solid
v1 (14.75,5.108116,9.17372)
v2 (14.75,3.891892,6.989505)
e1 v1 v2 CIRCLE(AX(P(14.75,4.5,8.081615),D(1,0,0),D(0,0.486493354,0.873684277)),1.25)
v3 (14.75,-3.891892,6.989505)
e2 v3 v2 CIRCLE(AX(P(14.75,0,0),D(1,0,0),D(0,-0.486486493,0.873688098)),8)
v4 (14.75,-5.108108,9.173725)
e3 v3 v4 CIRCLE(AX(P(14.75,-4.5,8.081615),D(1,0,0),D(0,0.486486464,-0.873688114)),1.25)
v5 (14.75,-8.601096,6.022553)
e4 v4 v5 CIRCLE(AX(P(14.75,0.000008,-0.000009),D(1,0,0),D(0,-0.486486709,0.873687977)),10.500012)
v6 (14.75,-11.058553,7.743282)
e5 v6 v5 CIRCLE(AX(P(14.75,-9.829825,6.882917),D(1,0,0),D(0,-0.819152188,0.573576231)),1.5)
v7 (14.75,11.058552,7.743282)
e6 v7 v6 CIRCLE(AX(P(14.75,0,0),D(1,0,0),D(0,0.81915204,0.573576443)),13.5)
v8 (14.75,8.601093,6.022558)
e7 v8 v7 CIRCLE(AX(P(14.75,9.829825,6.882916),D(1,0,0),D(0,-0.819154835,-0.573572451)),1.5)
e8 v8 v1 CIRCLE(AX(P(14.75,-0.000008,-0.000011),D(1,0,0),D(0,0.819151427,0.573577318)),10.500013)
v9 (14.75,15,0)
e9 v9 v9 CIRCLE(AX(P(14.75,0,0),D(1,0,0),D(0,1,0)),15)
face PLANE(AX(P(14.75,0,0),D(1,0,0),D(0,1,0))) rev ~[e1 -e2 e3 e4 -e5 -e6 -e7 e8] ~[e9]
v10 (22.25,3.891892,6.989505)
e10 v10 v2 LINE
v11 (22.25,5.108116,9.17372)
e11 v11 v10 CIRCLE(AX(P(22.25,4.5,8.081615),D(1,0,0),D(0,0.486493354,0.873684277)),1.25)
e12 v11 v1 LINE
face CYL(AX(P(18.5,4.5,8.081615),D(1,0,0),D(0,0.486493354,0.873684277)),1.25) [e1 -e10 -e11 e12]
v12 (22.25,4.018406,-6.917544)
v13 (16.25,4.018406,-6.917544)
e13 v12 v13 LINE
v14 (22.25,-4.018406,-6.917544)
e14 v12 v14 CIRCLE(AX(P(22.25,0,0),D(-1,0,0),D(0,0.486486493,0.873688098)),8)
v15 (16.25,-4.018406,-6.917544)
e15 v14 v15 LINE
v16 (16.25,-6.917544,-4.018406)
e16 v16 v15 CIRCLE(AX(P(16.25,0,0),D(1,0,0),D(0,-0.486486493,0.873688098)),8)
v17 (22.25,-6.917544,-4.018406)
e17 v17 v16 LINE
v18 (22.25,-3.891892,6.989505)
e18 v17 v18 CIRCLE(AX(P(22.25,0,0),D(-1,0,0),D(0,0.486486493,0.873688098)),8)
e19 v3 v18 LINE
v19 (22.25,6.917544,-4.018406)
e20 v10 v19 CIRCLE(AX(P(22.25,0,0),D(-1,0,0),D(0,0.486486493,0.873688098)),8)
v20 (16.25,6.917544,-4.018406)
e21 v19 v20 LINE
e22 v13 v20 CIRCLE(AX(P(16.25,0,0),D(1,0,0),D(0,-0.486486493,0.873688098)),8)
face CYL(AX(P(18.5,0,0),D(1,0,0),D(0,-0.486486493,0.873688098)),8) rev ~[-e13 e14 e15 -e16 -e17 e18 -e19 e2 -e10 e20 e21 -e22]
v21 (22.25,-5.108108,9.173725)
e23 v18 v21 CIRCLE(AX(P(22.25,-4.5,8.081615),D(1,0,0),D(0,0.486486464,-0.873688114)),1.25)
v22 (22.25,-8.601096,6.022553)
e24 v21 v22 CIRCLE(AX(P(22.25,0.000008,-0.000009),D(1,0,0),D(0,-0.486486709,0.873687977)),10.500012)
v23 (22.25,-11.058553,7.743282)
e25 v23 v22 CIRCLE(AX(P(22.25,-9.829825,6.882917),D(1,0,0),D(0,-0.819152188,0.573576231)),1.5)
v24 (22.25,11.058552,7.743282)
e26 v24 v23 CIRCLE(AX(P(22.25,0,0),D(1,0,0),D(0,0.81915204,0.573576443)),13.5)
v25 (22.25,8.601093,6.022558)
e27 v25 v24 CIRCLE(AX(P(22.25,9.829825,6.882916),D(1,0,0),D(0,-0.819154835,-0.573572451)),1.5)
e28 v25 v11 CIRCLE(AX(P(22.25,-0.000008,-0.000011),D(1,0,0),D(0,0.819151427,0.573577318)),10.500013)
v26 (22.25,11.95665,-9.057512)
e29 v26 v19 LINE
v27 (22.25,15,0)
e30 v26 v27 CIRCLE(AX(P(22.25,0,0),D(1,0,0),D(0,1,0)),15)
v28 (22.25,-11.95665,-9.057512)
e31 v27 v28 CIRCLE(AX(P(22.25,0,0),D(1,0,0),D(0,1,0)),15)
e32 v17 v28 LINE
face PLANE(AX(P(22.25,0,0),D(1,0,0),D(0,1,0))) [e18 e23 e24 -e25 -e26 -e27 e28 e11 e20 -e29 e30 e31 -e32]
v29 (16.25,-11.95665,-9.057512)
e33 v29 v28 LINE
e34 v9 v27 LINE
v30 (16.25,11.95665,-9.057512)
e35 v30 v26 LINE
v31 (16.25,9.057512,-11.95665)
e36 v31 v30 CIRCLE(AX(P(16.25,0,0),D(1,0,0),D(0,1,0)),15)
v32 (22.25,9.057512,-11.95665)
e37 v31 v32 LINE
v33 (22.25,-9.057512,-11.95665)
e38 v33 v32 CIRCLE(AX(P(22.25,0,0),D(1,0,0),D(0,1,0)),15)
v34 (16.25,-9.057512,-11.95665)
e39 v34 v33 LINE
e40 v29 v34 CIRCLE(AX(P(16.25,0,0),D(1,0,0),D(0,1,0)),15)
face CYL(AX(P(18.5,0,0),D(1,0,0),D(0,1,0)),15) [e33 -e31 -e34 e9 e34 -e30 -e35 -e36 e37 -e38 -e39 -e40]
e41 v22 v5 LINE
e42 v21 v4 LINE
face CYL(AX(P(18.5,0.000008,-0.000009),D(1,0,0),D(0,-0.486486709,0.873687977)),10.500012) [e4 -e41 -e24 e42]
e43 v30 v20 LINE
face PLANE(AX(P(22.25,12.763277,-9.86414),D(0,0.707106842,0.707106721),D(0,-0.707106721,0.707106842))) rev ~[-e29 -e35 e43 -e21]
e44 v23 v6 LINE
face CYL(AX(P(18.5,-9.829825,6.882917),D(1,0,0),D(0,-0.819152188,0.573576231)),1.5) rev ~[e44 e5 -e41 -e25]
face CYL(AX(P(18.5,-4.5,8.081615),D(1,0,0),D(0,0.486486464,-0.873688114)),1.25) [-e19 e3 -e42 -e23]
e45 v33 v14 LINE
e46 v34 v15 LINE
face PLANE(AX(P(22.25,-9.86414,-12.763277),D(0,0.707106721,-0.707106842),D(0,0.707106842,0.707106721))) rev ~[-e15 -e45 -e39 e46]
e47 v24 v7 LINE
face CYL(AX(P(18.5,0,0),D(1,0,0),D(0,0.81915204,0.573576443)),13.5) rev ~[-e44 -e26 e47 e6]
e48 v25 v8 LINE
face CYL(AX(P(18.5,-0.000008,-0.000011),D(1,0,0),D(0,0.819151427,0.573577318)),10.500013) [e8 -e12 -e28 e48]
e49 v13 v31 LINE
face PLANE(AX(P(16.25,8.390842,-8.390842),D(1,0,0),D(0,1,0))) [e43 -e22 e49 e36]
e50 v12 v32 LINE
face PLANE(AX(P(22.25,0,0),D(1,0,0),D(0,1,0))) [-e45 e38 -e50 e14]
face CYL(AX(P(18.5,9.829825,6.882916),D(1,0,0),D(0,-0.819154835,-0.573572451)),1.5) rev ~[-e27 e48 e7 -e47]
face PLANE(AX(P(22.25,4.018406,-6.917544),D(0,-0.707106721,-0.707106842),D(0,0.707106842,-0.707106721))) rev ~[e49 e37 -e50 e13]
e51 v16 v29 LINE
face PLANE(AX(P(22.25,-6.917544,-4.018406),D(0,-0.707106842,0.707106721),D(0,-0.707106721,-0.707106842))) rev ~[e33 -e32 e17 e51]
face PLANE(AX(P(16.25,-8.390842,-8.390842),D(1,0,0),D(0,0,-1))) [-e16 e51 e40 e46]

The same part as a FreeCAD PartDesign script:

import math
import FreeCAD as App
import Part
import Sketcher

V = App.Vector
Q = App.Units.Quantity

doc = App.newDocument("Part")
body = doc.addObject("PartDesign::Body", "Body")

sketch1 = body.newObject("Sketcher::SketchObject", "Sketch")
sketch1.AttachmentSupport = (doc.getObject("YZ_Plane"), [""])
sketch1.MapMode = "FlatFace"
sketch1.addGeometry([
    Part.Circle(V(0, 0, 0), V(0, 0, 1), 8),
    Part.Circle(V(0, 0, 0), V(0, 0, 1), 4),
], False)
sketch1.addConstraint([
    Sketcher.Constraint("Coincident", 0, 3, -1, 1),
    Sketcher.Constraint("Coincident", 1, 3, -1, 1),
    Sketcher.Constraint("Diameter", 0, Q("16 mm")),
    Sketcher.Constraint("Diameter", 1, Q("8 mm")),
])
pad1 = body.newObject("PartDesign::Pad", "Pad")
pad1.Profile = sketch1
pad1.Length = 7.5

sketch2 = body.newObject("Sketcher::SketchObject", "Sketch001")
sketch2.AttachmentSupport = (doc.getObject("YZ_Plane"), [""])
sketch2.MapMode = "FlatFace"
sketch2.addGeometry([
    Part.Circle(V(0, 0, 0), V(0, 0, 1), 6),
    Part.Circle(V(0, 0, 0), V(0, 0, 1), 4),
], False)
sketch2.addConstraint([
    Sketcher.Constraint("Coincident", 0, 3, -1, 1),
    Sketcher.Constraint("Coincident", 1, 3, -1, 1),
    Sketcher.Constraint("Diameter", 0, Q("12 mm")),
    Sketcher.Constraint("Diameter", 1, Q("8 mm")),
])
pad2 = body.newObject("PartDesign::Pad", "Pad001")
pad2.Profile = sketch2
pad2.Length = 7
pad2.Reversed = True

sketch3 = body.newObject("Sketcher::SketchObject", "Sketch002")
sketch3.AttachmentSupport = (doc.getObject("YZ_Plane"), [""])
sketch3.MapMode = "FlatFace"
sketch3.AttachmentOffset = App.Placement(V(0, 0, -7), App.Rotation())
sketch3.addGeometry([
    Part.Circle(V(0, 0, 0), V(0, 0, 1), 8),
    Part.Circle(V(0, 0, 0), V(0, 0, 1), 4),
], False)
sketch3.addConstraint([
    Sketcher.Constraint("Coincident", 0, 3, -1, 1),
    Sketcher.Constraint("Coincident", 1, 3, -1, 1),
    Sketcher.Constraint("Diameter", 0, Q("16 mm")),
    Sketcher.Constraint("Diameter", 1, Q("8 mm")),
])
pad3 = body.newObject("PartDesign::Pad", "Pad002")
pad3.Profile = sketch3
pad3.Length = 1.5
pad3.Reversed = True

sketch4 = body.newObject("Sketcher::SketchObject", "Sketch003")
sketch4.AttachmentSupport = (doc.getObject("XZ_Plane"), [""])
sketch4.MapMode = "FlatFace"
sketch4.addGeometry(Part.Circle(V(4, 0, 0), V(0, 0, 1), 2), False)
sketch4.addConstraint([
    Sketcher.Constraint("PointOnObject", 0, 3, -1),
    Sketcher.Constraint("Diameter", 0, Q("4 mm")),
    Sketcher.Constraint("DistanceX", -1, 1, 0, 3, Q("4 mm")),
])
pad4 = body.newObject("PartDesign::Pad", "Pad003")
pad4.Profile = sketch4
pad4.Length = 9
body2 = doc.addObject("PartDesign::Body", "Body001")
doc.recompute()

body.Placement = App.Placement(V(0, 0, 0), App.Rotation(V(1, 0, 0), 45))
boolean = body2.newObject("PartDesign::Boolean", "Boolean")
boolean.Type = "Fuse"
boolean.addObjects([body])
body3 = doc.addObject("PartDesign::Body", "Body002")
doc.recompute()

body2.Placement = App.Placement(V(22.5, 0, 0), App.Rotation(V(0, 0, 1), 180))
boolean2 = body3.newObject("PartDesign::Boolean", "Boolean001")
boolean2.Type = "Fuse"
boolean2.addObjects([body2])
body4 = doc.addObject("PartDesign::Body", "Body003")

sketch5 = body4.newObject("Sketcher::SketchObject", "Sketch004")
sketch5.AttachmentSupport = (doc.getObject("YZ_Plane003"), [""])
sketch5.MapMode = "FlatFace"
sketch5.addGeometry([
    Part.Circle(V(0, 0, 0), V(0, 0, 1), 15),
    Part.ArcOfCircle(Part.Circle(V(0, 0, 0), V(0, 0, 1), 8), math.radians(119.109909), math.radians(420.890091)),
    Part.ArcOfCircle(Part.Circle(V(-4.5, 8.081615, 0), V(0, 0, 1), 1.25), math.radians(-60.890093), math.radians(119.109907)),
    Part.ArcOfCircle(Part.Circle(V(0.000008, -0.000009, 0), V(0, 0, 1), 10.500012), math.radians(119.109924), math.radians(144.999982)),
    Part.ArcOfCircle(Part.Circle(V(-9.829825, 6.882917, 0), V(0, 0, 1), 1.5), math.radians(145.000014), math.radians(325.000014)),
    Part.ArcOfCircle(Part.Circle(V(0, 0, 0), V(0, 0, 1), 13.5), math.radians(35), math.radians(145)),
    Part.ArcOfCircle(Part.Circle(V(9.829825, 6.882916, 0), V(0, 0, 1), 1.5), math.radians(-145.000279), math.radians(35.00005)),
    Part.ArcOfCircle(Part.Circle(V(-0.000008, -0.000011, 0), V(0, 0, 1), 10.500013), math.radians(35.000062), math.radians(60.890034)),
    Part.ArcOfCircle(Part.Circle(V(4.5, 8.081615, 0), V(0, 0, 1), 1.25), math.radians(60.889641), math.radians(240.890113)),
], False)
sketch5.addConstraint([
    Sketcher.Constraint("Tangent", 1, 1, 2, 1),
    Sketcher.Constraint("Tangent", 2, 2, 3, 1),
    Sketcher.Constraint("Tangent", 3, 2, 4, 2),
    Sketcher.Constraint("Tangent", 4, 1, 5, 2),
    Sketcher.Constraint("Tangent", 5, 1, 6, 2),
    Sketcher.Constraint("Coincident", 6, 1, 7, 1),
    Sketcher.Constraint("Coincident", 7, 2, 8, 1),
    Sketcher.Constraint("Tangent", 8, 2, 1, 2),
    Sketcher.Constraint("Coincident", 0, 3, -1, 1),
    Sketcher.Constraint("Coincident", 1, 3, -1, 1),
    Sketcher.Constraint("Coincident", 5, 3, -1, 1),
    Sketcher.Constraint("Equal", 4, 6),
    Sketcher.Constraint("Equal", 3, 7),
    Sketcher.Constraint("Equal", 2, 8),
    Sketcher.Constraint("Horizontal", 4, 3, 6, 3),
    Sketcher.Constraint("Horizontal", 2, 3, 8, 3),
    Sketcher.Constraint("Diameter", 0, Q("30 mm")),
    Sketcher.Constraint("Radius", 1, Q("8 mm")),
    Sketcher.Constraint("Radius", 4, Q("1.5 mm")),
    Sketcher.Constraint("Radius", 5, Q("13.5 mm")),
    Sketcher.Constraint("Radius", 2, Q("1.25 mm")),
    Sketcher.Constraint("DistanceX", 2, 3, 8, 3, Q("9 mm")),
    Sketcher.Constraint("Radius", 3, Q("10.500012 mm")),
    Sketcher.Constraint("DistanceY", 6, 3, 2, 3, Q("1.198699 mm")),
    Sketcher.Constraint("DistanceX", 8, 2, 6, 1, Q("4.709201 mm")),
    Sketcher.Constraint("DistanceY", -1, 1, 7, 2, Q("9.17372 mm")),
])
pad5 = body4.newObject("PartDesign::Pad", "Pad004")
pad5.Profile = sketch5
pad5.Length = 7.5
pad5.Midplane = True
body5 = doc.addObject("PartDesign::Body", "Body004")
doc.recompute()

body4.Placement = App.Placement(V(18.5, 0, 0), App.Rotation(V(0, 0, 1), 0))
boolean3 = body5.newObject("PartDesign::Boolean", "Boolean002")
boolean3.Type = "Fuse"
boolean3.addObjects([body4])
doc.recompute()

boolean4 = body5.newObject("PartDesign::Boolean", "Boolean003")
boolean4.Type = "Cut"
boolean4.addObjects([body3])

sketch6 = body5.newObject("Sketcher::SketchObject", "Sketch005")
sketch6.AttachmentSupport = (doc.getObject("YZ_Plane004"), [""])
sketch6.MapMode = "FlatFace"
sketch6.AttachmentOffset = App.Placement(V(0, 0, 22.25), App.Rotation())
sketch6.addGeometry([
    Part.LineSegment(V(4.018406, -6.917544, 0), V(9.86414, -12.763277, 0)),
    Part.LineSegment(V(9.86414, -12.763277, 0), V(12.763277, -9.86414, 0)),
    Part.LineSegment(V(12.763277, -9.86414, 0), V(6.917544, -4.018406, 0)),
    Part.LineSegment(V(6.917544, -4.018406, 0), V(4.018406, -6.917544, 0)),
], False)
sketch6.addConstraint([
    Sketcher.Constraint("Coincident", 0, 2, 1, 1),
    Sketcher.Constraint("Coincident", 1, 2, 2, 1),
    Sketcher.Constraint("Coincident", 2, 2, 3, 1),
    Sketcher.Constraint("Coincident", 3, 2, 0, 1),
    Sketcher.Constraint("Perpendicular", 0, 1),
    Sketcher.Constraint("Perpendicular", 1, 2),
    Sketcher.Constraint("Perpendicular", 2, 3),
    Sketcher.Constraint("Angle", 0, Q("-44.999995 deg")),
    Sketcher.Constraint("Distance", 1, Q("4.099999 mm")),
    Sketcher.Constraint("DistanceX", -1, 1, 0, 2, Q("9.86414 mm")),
    Sketcher.Constraint("DistanceY", 1, 2, -1, 1, Q("9.86414 mm")),
    Sketcher.Constraint("DistanceY", 0, 2, 2, 2, Q("8.744871 mm")),
])
pocket1 = body5.newObject("PartDesign::Pocket", "Pocket")
pocket1.Profile = sketch6
pocket1.Length = 6
doc.recompute()

polarpattern = body5.newObject("PartDesign::PolarPattern", "PolarPattern")
polarpattern.Originals = [pocket1]
polarpattern.Axis = (doc.getObject("X_Axis004"), [""])
polarpattern.Angle = 90
polarpattern.Occurrences = 2
polarpattern.Reversed = True
body5.Tip = polarpattern

doc.recompute()
